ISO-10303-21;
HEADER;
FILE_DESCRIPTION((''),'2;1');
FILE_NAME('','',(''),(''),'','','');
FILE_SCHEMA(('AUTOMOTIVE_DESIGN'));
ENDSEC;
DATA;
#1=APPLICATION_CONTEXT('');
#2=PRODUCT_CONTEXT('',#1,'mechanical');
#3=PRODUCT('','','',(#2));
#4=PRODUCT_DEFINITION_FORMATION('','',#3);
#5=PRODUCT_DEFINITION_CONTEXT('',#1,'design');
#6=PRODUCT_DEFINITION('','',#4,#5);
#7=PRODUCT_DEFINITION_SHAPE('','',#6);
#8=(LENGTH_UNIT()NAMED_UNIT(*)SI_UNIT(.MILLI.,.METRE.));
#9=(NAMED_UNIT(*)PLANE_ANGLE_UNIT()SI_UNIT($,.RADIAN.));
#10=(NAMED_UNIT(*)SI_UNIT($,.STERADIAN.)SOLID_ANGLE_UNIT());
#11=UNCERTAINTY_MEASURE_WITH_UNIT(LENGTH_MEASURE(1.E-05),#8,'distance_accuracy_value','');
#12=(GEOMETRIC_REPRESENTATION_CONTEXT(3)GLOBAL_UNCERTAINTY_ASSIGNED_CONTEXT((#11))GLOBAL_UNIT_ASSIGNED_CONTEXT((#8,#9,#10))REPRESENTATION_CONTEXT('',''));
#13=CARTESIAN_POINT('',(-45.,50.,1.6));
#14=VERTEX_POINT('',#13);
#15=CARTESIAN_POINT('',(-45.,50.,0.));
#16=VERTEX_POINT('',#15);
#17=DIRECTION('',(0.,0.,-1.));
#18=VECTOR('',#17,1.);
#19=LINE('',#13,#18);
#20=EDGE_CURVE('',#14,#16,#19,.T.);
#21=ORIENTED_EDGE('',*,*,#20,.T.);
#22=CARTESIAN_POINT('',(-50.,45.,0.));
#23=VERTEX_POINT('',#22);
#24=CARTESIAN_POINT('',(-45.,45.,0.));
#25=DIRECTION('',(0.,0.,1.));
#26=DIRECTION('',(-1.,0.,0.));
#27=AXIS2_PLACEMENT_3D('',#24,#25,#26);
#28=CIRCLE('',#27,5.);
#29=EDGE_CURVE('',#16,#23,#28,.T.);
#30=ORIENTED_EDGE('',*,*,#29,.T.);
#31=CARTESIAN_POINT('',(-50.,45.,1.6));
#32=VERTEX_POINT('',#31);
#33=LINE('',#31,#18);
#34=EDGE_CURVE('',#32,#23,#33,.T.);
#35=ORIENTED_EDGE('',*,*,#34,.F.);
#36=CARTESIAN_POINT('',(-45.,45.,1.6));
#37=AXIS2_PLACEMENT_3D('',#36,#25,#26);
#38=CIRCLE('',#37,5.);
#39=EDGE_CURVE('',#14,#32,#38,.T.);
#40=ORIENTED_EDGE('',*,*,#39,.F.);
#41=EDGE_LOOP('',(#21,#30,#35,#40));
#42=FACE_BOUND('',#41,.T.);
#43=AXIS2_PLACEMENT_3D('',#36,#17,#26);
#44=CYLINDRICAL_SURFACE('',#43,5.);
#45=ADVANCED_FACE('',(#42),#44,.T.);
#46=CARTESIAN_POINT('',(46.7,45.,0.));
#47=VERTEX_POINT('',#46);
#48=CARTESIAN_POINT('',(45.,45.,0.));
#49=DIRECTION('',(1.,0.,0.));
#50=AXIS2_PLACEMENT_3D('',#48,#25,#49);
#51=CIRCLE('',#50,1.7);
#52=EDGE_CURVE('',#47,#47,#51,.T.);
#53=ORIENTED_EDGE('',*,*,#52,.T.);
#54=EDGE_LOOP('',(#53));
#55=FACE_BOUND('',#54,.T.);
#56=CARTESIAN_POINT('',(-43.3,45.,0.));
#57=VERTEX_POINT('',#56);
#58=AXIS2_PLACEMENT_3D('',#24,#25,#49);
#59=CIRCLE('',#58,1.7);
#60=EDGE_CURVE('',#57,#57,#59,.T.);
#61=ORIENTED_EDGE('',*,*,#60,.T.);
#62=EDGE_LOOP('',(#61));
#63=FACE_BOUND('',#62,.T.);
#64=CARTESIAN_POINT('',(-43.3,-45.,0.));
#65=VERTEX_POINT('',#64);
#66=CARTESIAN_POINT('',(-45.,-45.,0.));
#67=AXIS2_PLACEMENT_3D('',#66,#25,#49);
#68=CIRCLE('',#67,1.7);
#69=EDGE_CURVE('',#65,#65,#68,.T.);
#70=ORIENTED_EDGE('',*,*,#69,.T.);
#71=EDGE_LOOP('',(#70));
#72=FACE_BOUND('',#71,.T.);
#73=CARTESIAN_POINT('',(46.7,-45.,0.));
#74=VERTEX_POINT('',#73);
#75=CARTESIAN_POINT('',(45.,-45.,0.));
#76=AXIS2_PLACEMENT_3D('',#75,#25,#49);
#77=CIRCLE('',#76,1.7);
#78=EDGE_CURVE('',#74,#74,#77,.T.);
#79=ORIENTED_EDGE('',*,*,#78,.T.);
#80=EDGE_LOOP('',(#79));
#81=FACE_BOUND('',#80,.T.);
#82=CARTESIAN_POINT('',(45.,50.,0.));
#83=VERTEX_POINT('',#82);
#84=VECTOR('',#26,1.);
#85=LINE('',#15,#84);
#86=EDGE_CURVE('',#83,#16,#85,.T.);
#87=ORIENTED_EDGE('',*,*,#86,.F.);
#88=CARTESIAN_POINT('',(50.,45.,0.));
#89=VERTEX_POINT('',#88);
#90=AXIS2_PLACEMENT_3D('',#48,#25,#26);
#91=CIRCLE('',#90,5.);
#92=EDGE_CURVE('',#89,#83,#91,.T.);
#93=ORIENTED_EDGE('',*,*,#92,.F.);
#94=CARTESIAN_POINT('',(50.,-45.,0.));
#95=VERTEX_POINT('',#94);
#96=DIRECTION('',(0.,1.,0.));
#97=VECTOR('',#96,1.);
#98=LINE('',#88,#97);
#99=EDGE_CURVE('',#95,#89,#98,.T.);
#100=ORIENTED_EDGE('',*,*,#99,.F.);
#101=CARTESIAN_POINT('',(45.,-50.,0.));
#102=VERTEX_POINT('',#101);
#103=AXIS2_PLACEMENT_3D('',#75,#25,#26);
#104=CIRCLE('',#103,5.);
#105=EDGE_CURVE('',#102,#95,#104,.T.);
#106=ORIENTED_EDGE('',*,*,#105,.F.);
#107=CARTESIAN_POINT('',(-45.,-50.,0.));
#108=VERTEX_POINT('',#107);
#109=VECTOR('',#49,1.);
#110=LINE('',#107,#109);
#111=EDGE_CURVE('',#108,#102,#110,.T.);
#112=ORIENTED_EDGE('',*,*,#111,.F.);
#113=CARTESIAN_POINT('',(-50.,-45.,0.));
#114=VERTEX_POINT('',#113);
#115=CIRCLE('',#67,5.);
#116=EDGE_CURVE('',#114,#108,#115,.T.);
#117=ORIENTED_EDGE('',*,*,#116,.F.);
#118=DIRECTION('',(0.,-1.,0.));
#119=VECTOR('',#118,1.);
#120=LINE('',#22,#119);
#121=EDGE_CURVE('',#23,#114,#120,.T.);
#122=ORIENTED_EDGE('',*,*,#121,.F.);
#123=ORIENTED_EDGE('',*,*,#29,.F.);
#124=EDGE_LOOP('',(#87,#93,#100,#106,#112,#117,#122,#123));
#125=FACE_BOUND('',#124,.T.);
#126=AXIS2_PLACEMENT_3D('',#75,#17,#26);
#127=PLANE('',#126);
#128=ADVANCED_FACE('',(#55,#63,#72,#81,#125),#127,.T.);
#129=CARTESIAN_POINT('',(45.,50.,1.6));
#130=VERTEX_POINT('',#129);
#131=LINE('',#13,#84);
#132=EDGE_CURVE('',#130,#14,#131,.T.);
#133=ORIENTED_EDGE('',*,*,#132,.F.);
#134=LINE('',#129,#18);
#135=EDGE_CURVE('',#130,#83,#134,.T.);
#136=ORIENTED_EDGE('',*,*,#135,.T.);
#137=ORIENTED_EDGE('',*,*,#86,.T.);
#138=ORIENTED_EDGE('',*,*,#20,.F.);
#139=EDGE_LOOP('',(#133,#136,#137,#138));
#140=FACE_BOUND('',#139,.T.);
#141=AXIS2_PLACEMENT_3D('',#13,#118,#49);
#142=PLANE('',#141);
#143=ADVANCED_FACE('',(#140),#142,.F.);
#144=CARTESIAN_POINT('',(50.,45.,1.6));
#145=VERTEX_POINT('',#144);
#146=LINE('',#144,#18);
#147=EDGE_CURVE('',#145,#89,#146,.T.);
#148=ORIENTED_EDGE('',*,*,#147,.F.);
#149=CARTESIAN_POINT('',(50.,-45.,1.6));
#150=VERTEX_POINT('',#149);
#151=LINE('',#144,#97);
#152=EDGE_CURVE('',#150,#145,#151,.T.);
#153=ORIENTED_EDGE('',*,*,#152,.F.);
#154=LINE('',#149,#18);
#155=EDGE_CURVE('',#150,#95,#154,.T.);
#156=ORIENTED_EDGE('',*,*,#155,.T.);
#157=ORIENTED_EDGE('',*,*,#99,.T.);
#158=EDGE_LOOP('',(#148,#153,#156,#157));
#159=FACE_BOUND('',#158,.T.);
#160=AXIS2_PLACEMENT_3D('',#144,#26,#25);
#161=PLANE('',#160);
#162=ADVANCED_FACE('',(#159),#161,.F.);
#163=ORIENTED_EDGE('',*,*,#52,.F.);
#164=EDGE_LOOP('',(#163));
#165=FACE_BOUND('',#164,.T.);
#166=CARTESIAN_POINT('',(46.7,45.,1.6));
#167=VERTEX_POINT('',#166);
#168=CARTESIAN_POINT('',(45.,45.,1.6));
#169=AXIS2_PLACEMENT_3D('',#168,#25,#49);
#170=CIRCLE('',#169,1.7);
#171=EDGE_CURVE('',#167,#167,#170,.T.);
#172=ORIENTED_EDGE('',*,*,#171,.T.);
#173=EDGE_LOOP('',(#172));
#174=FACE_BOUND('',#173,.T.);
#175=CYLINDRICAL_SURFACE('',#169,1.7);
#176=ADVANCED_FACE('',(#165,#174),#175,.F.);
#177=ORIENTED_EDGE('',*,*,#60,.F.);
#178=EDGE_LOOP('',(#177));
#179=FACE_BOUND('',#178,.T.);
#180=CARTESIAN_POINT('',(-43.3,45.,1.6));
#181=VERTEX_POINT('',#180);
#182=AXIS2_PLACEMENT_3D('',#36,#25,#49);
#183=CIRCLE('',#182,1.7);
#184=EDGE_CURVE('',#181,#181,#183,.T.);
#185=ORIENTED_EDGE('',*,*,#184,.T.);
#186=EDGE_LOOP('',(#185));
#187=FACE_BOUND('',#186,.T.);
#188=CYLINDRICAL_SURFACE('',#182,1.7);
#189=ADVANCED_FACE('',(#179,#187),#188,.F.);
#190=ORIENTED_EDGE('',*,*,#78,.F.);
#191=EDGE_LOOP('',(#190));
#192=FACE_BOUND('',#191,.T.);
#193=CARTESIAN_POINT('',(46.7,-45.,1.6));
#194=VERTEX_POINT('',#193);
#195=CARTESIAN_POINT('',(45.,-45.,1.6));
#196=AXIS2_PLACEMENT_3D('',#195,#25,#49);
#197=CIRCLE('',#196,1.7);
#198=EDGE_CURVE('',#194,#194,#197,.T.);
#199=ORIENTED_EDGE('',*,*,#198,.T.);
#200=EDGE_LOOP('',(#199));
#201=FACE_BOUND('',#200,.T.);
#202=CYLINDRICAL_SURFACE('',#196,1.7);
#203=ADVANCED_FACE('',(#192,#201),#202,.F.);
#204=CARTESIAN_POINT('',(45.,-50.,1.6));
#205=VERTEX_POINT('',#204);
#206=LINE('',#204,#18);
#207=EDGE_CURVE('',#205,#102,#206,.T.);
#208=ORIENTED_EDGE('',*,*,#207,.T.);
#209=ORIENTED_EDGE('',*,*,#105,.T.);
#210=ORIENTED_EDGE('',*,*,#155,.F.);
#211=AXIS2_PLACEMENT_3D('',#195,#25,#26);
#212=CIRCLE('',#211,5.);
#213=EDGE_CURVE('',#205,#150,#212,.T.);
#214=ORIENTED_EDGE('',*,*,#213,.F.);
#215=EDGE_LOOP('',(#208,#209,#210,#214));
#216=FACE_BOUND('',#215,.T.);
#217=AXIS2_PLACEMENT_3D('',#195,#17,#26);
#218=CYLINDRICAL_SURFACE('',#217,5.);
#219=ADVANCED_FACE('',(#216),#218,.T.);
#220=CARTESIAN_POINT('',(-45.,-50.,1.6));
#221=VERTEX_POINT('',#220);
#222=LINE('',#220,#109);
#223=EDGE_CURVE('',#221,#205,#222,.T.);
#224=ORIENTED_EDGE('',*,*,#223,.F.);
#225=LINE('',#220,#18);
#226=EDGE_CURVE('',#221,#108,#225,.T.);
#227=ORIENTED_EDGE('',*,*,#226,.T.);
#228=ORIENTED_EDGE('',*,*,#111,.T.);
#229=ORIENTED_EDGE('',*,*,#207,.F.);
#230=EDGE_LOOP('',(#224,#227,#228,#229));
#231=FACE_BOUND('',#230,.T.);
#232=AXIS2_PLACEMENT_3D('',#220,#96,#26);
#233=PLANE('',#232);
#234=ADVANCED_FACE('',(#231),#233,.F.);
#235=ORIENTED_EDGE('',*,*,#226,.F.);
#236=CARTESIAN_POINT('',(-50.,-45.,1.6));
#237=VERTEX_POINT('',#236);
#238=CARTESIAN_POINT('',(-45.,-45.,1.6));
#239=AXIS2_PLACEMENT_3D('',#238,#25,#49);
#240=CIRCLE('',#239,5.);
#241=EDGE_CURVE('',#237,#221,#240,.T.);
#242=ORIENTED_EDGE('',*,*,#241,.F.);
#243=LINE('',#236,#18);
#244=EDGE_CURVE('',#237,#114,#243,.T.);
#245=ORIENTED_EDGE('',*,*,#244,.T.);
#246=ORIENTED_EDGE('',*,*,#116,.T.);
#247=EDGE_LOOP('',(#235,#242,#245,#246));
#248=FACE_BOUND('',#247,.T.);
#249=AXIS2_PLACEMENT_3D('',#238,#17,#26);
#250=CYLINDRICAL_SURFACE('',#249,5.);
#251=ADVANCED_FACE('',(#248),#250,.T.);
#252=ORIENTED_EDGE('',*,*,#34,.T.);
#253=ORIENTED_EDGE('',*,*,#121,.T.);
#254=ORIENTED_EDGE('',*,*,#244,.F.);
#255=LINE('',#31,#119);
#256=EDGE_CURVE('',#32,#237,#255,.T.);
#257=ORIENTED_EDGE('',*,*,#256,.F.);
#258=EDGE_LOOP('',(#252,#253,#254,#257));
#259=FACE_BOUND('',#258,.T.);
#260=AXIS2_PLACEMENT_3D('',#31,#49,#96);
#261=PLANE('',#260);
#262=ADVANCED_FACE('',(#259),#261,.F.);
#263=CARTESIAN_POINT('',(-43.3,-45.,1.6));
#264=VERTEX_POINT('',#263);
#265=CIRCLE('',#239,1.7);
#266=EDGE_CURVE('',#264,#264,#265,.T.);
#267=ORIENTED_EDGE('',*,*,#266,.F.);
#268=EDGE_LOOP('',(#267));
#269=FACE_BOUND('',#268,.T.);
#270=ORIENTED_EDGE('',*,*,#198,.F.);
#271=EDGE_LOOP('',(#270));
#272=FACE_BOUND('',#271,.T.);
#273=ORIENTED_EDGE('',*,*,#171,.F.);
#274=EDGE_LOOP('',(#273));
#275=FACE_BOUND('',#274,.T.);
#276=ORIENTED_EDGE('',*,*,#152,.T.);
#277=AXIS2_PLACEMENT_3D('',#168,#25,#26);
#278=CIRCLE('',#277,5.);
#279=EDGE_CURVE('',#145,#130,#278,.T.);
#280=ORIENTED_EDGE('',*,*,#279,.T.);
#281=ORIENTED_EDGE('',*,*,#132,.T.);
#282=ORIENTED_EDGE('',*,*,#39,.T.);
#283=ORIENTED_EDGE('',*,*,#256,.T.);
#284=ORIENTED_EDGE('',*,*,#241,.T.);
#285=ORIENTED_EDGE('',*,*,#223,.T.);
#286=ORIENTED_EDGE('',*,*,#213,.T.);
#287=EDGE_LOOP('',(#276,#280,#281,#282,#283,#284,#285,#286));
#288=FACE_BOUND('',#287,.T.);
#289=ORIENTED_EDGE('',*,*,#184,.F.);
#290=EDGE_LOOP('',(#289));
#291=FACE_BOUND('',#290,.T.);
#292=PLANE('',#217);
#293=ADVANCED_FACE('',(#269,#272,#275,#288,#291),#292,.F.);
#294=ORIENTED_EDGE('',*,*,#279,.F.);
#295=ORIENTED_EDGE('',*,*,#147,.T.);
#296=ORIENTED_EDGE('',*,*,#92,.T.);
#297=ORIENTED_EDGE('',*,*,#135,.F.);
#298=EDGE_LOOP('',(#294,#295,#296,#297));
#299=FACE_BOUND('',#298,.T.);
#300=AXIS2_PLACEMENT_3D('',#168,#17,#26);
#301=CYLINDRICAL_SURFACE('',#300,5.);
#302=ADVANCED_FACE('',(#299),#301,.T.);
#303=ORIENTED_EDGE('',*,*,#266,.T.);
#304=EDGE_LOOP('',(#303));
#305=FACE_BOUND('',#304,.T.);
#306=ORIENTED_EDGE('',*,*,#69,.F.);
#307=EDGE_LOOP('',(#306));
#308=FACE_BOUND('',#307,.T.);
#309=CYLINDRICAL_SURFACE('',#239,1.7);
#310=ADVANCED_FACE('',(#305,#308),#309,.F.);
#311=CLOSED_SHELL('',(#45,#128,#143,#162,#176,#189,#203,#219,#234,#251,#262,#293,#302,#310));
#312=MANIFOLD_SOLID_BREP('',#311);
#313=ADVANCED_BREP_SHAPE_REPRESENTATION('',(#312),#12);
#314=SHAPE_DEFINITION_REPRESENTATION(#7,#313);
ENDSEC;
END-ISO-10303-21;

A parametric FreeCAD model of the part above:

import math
import FreeCAD as App
import Part
import Sketcher
from FreeCAD import Vector
Q = App.Units.Quantity

doc = App.newDocument("Part")
body = doc.addObject("PartDesign::Body", "Body")

# Sketch on XY plane
sketch1 = doc.addObject("Sketcher::SketchObject", "Sketch")
body.addObject(sketch1)
sketch1.AttachmentSupport = (doc.XY_Plane, [""])
sketch1.MapMode = "FlatFace"
sketch1.addGeometry([
    Part.LineSegment(Vector(45, 50, 0), Vector(-45, 50, 0)),  # 0
    Part.ArcOfCircle(Part.Circle(Vector(-45, 45, 0), Vector(0, 0, 1), 5), math.radians(90), math.radians(180)),  # 1
    Part.LineSegment(Vector(-50, 45, 0), Vector(-50, -45, 0)),  # 2
    Part.ArcOfCircle(Part.Circle(Vector(-45, -45, 0), Vector(0, 0, 1), 5), math.radians(180), math.radians(270)),  # 3
    Part.LineSegment(Vector(-45, -50, 0), Vector(45, -50, 0)),  # 4
    Part.ArcOfCircle(Part.Circle(Vector(45, -45, 0), Vector(0, 0, 1), 5), math.radians(-90), math.radians(0)),  # 5
    Part.LineSegment(Vector(50, -45, 0), Vector(50, 45, 0)),  # 6
    Part.ArcOfCircle(Part.Circle(Vector(45, 45, 0), Vector(0, 0, 1), 5), math.radians(0), math.radians(90)),  # 7
], False)
sketch1.addConstraint([
    Sketcher.Constraint("Tangent", 0, 2, 1, 1),
    Sketcher.Constraint("Tangent", 1, 2, 2, 1),
    Sketcher.Constraint("Tangent", 2, 2, 3, 1),
    Sketcher.Constraint("Tangent", 3, 2, 4, 1),
    Sketcher.Constraint("Tangent", 4, 2, 5, 1),
    Sketcher.Constraint("Tangent", 5, 2, 6, 1),
    Sketcher.Constraint("Tangent", 6, 2, 7, 1),
    Sketcher.Constraint("Tangent", 7, 2, 0, 1),
    Sketcher.Constraint("Horizontal", 0),
    Sketcher.Constraint("Vertical", 2),
    Sketcher.Constraint("Horizontal", 4),
    Sketcher.Constraint("Vertical", 6),
    Sketcher.Constraint("Equal", 1, 3),
    Sketcher.Constraint("Equal", 3, 5),
    Sketcher.Constraint("Equal", 5, 7),
    Sketcher.Constraint("Symmetric", 1, 3, 5, 3, -1, 1),
    Sketcher.Constraint("Equal", 4, 2),
    Sketcher.Constraint("Radius", 1, Q("5 mm")),
    Sketcher.Constraint("DistanceX", 0, 2, 0, 1, Q("90 mm")),
])
pad1 = doc.addObject("PartDesign::Pad", "Pad")
body.addObject(pad1)
pad1.Profile = sketch1
pad1.Length = 1.6

# Sketch on XY plane
sketch2 = doc.addObject("Sketcher::SketchObject", "Sketch001")
body.addObject(sketch2)
sketch2.AttachmentSupport = (doc.XY_Plane, [""])
sketch2.MapMode = "FlatFace"
sketch2.AttachmentOffset = App.Placement(Vector(0, 0, 1.6), App.Rotation())
sketch2.addGeometry([
    Part.Circle(Vector(45, 45, 0), Vector(0, 0, 1), 1.7),
    Part.Circle(Vector(-45, 45, 0), Vector(0, 0, 1), 1.7),
    Part.Circle(Vector(-45, -45, 0), Vector(0, 0, 1), 1.7),
    Part.Circle(Vector(45, -45, 0), Vector(0, 0, 1), 1.7),
], False)
sketch2.addConstraint([
    Sketcher.Constraint("Equal", 0, 1),
    Sketcher.Constraint("Equal", 1, 2),
    Sketcher.Constraint("Equal", 2, 3),
    Sketcher.Constraint("Symmetric", 0, 3, 2, 3, -1, 1),
    Sketcher.Constraint("Symmetric", 1, 3, 3, 3, -1, 1),
    Sketcher.Constraint("Symmetric", 0, 3, 1, 3, -2),
    Sketcher.Constraint("Diameter", 0, Q("3.4 mm")),
    Sketcher.Constraint("DistanceX", -1, 1, 0, 3, Q("45 mm")),
    Sketcher.Constraint("DistanceY", -1, 1, 0, 3, Q("45 mm")),
])
doc.recompute()
hole = doc.addObject("PartDesign::Hole", "Hole")
body.addObject(hole)
hole.Profile = sketch2
hole.ThreadType = "None"
hole.Diameter = 3.4
hole.DepthType = "ThroughAll"

doc.recompute()
